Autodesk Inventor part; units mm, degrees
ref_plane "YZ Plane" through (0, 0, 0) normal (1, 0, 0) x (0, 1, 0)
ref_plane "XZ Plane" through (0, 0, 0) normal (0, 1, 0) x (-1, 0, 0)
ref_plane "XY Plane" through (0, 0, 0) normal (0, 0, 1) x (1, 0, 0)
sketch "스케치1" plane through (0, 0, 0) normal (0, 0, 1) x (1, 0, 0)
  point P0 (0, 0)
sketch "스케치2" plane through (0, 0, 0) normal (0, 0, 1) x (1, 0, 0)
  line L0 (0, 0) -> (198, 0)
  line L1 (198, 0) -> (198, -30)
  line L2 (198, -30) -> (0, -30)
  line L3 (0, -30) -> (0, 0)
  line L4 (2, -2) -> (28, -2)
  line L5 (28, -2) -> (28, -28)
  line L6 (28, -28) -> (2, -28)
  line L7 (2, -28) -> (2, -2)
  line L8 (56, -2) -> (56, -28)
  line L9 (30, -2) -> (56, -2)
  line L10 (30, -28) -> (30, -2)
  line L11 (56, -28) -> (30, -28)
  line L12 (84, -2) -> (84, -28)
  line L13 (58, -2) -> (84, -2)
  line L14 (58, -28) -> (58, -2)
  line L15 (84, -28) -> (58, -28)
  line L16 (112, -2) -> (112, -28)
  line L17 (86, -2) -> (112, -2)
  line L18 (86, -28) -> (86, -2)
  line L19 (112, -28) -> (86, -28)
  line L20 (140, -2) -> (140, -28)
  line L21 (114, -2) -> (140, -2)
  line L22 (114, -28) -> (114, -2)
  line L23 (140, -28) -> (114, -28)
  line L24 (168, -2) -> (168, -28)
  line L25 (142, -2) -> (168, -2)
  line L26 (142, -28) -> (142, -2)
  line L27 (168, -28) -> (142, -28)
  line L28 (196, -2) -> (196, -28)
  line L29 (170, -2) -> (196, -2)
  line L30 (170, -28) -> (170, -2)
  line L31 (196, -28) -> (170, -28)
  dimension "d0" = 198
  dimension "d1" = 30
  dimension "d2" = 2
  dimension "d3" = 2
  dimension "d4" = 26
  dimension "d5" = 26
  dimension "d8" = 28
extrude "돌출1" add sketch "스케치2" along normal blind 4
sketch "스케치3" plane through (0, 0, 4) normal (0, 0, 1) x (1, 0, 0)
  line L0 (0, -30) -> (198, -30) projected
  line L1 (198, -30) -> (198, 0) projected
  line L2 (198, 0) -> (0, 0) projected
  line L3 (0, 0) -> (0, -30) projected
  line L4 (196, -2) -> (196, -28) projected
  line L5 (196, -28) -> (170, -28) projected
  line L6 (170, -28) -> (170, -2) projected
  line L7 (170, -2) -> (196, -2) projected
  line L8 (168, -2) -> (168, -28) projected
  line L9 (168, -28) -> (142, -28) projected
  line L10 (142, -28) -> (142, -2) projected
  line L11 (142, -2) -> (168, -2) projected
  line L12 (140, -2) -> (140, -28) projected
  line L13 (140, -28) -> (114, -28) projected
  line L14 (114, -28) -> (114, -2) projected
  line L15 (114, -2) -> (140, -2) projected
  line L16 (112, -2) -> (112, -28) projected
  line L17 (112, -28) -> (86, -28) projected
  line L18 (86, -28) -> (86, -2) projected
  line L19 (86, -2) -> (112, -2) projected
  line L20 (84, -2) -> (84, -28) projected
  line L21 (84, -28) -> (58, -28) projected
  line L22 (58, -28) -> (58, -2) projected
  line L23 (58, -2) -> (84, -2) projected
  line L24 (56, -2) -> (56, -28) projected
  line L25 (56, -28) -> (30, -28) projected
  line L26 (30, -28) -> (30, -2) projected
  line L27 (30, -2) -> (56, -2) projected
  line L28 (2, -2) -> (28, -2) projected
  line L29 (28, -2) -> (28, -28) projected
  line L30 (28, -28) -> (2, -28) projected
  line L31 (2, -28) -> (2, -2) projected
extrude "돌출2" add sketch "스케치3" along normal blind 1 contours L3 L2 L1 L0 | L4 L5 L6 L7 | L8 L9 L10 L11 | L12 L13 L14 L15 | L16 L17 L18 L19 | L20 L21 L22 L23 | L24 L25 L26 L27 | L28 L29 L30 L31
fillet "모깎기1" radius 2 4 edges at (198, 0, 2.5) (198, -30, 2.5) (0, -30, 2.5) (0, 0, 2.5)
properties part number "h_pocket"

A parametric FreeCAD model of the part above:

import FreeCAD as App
import Part
import Sketcher
from FreeCAD import Vector


def edges_at(feature, points):
    """Names of the edges that pass closest to the given points."""
    edges = feature.Shape.Edges
    near = lambda p: min(range(len(edges)), key=lambda i: edges[i].distToShape(Part.Vertex(*p))[0])
    return sorted({f"Edge{near(p) + 1}" for p in points})


def add_polygon(sketch, points):
    """Adds a closed chain of lines whose ends are joined by coincident constraints."""
    first, n = sketch.GeometryCount, len(points)
    for a, b in zip(points, points[1:] + points[:1]):
        sketch.addGeometry(Part.LineSegment(App.Vector(*a, 0), App.Vector(*b, 0)), False)
    for i in range(n):
        sketch.addConstraint(Sketcher.Constraint("Coincident", first + i, 2, first + (i + 1) % n, 1))

doc = App.newDocument("Part")
body = doc.addObject("PartDesign::Body", "Body")

# Sketch on XY plane
sketch1 = body.newObject("Sketcher::SketchObject", "Sketch")
sketch1.AttachmentSupport = (doc.getObject("XY_Plane"), [""])
sketch1.MapMode = "FlatFace"
add_polygon(sketch1, [(198, 0), (0, 0), (0, -30), (198, -30)])  # lines 0-3
add_polygon(sketch1, [(2, -28), (2, -2), (28, -2), (28, -28)])  # lines 4-7
add_polygon(sketch1, [(30, -2), (56, -2), (56, -28), (30, -28)])  # lines 8-11
add_polygon(sketch1, [(58, -2), (84, -2), (84, -28), (58, -28)])  # lines 12-15
add_polygon(sketch1, [(86, -2), (112, -2), (112, -28), (86, -28)])  # lines 16-19
add_polygon(sketch1, [(114, -2), (140, -2), (140, -28), (114, -28)])  # lines 20-23
add_polygon(sketch1, [(142, -2), (168, -2), (168, -28), (142, -28)])  # lines 24-27
add_polygon(sketch1, [(170, -2), (196, -2), (196, -28), (170, -28)])  # lines 28-31
sketch1.addConstraint([
    Sketcher.Constraint("Horizontal", 0),
    Sketcher.Constraint("Vertical", 1),
    Sketcher.Constraint("Horizontal", 2),
    Sketcher.Constraint("Vertical", 3),
    Sketcher.Constraint("Vertical", 4),
    Sketcher.Constraint("Horizontal", 5),
    Sketcher.Constraint("Vertical", 6),
    Sketcher.Constraint("Horizontal", 7),
    Sketcher.Constraint("Horizontal", 8),
    Sketcher.Constraint("Vertical", 9),
    Sketcher.Constraint("Horizontal", 10),
    Sketcher.Constraint("Vertical", 11),
    Sketcher.Constraint("Horizontal", 12),
    Sketcher.Constraint("Vertical", 13),
    Sketcher.Constraint("Horizontal", 14),
    Sketcher.Constraint("Vertical", 15),
    Sketcher.Constraint("Horizontal", 16),
    Sketcher.Constraint("Vertical", 17),
    Sketcher.Constraint("Horizontal", 18),
    Sketcher.Constraint("Vertical", 19),
    Sketcher.Constraint("Horizontal", 20),
    Sketcher.Constraint("Vertical", 21),
    Sketcher.Constraint("Horizontal", 22),
    Sketcher.Constraint("Vertical", 23),
    Sketcher.Constraint("Horizontal", 24),
    Sketcher.Constraint("Vertical", 25),
    Sketcher.Constraint("Horizontal", 26),
    Sketcher.Constraint("Vertical", 27),
    Sketcher.Constraint("Horizontal", 28),
    Sketcher.Constraint("Vertical", 29),
    Sketcher.Constraint("Horizontal", 30),
    Sketcher.Constraint("Vertical", 31),
    Sketcher.Constraint("Coincident", 0, 2, -1, 1),
    Sketcher.Constraint("Horizontal", 5, 2, 8, 2),
    Sketcher.Constraint("Horizontal", 7, 2, 9, 2),
    Sketcher.Constraint("Horizontal", 11, 2, 12, 2),
    Sketcher.Constraint("Horizontal", 10, 2, 13, 2),
    Sketcher.Constraint("Horizontal", 15, 2, 16, 2),
    Sketcher.Constraint("Horizontal", 14, 2, 17, 2),
    Sketcher.Constraint("Horizontal", 19, 2, 20, 2),
    Sketcher.Constraint("Horizontal", 18, 2, 21, 2),
    Sketcher.Constraint("Horizontal", 23, 2, 24, 2),
    Sketcher.Constraint("Horizontal", 22, 2, 25, 2),
    Sketcher.Constraint("Horizontal", 27, 2, 28, 2),
    Sketcher.Constraint("Horizontal", 26, 2, 29, 2),
    Sketcher.Constraint("Equal", 7, 8),
    Sketcher.Constraint("Equal", 10, 12),
    Sketcher.Constraint("Equal", 14, 16),
    Sketcher.Constraint("Equal", 18, 20),
    Sketcher.Constraint("Equal", 22, 24),
    Sketcher.Constraint("Equal", 26, 28),
    Sketcher.Constraint("Equal", 30, 4),
    Sketcher.Constraint("DistanceX", 0, 2, 0, 1, 198.0),
    Sketcher.Constraint("DistanceX", 5, 1, 5, 2, 26.0),
    Sketcher.Constraint("DistanceY", 1, 2, 1, 1, 30.0),
    Sketcher.Constraint("DistanceX", -1, 1, 4, 2, 2.0),
    Sketcher.Constraint("DistanceY", 4, 2, -1, 1, 2.0),
    Sketcher.Constraint("DistanceX", -1, 1, 10, 2, 30.0),
    Sketcher.Constraint("DistanceX", 8, 2, 12, 2, 28.0),
    Sketcher.Constraint("DistanceX", 12, 2, 16, 2, 28.0),
    Sketcher.Constraint("DistanceX", 16, 2, 20, 2, 28.0),
    Sketcher.Constraint("DistanceX", 20, 2, 24, 2, 28.0),
    Sketcher.Constraint("DistanceX", 28, 2, 3, 2, 2.0),
])
pad1 = body.newObject("PartDesign::Pad", "Pad")
pad1.Profile = sketch1
pad1.Length = 4

# Sketch on XY plane
sketch2 = body.newObject("Sketcher::SketchObject", "Sketch001")
sketch2.AttachmentSupport = (doc.getObject("XY_Plane"), [""])
sketch2.MapMode = "FlatFace"
sketch2.AttachmentOffset = App.Placement(Vector(0, 0, 4), App.Rotation())
add_polygon(sketch2, [(0, 0), (0, -30), (198, -30), (198, 0)])  # lines 0-3
sketch2.addConstraint([
    Sketcher.Constraint("Vertical", 0),
    Sketcher.Constraint("Horizontal", 1),
    Sketcher.Constraint("Vertical", 2),
    Sketcher.Constraint("Horizontal", 3),
    Sketcher.Constraint("Coincident", 3, 2, -1, 1),
    Sketcher.Constraint("DistanceX", 1, 1, 1, 2, 198.0),
    Sketcher.Constraint("DistanceY", 0, 2, 0, 1, 30.0),
])
pad2 = body.newObject("PartDesign::Pad", "Pad001")
pad2.Profile = sketch2
pad2.Length = 1
doc.recompute()

fillet = body.newObject("PartDesign::Fillet", "Fillet")
fillet.Base = (pad2, edges_at(pad2, [
    (198, 0, 2.5),
    (198, -30, 2.5),
    (0, -30, 2.5),
    (0, 0, 2.5),
]))
fillet.Radius = 2

doc.recompute()
